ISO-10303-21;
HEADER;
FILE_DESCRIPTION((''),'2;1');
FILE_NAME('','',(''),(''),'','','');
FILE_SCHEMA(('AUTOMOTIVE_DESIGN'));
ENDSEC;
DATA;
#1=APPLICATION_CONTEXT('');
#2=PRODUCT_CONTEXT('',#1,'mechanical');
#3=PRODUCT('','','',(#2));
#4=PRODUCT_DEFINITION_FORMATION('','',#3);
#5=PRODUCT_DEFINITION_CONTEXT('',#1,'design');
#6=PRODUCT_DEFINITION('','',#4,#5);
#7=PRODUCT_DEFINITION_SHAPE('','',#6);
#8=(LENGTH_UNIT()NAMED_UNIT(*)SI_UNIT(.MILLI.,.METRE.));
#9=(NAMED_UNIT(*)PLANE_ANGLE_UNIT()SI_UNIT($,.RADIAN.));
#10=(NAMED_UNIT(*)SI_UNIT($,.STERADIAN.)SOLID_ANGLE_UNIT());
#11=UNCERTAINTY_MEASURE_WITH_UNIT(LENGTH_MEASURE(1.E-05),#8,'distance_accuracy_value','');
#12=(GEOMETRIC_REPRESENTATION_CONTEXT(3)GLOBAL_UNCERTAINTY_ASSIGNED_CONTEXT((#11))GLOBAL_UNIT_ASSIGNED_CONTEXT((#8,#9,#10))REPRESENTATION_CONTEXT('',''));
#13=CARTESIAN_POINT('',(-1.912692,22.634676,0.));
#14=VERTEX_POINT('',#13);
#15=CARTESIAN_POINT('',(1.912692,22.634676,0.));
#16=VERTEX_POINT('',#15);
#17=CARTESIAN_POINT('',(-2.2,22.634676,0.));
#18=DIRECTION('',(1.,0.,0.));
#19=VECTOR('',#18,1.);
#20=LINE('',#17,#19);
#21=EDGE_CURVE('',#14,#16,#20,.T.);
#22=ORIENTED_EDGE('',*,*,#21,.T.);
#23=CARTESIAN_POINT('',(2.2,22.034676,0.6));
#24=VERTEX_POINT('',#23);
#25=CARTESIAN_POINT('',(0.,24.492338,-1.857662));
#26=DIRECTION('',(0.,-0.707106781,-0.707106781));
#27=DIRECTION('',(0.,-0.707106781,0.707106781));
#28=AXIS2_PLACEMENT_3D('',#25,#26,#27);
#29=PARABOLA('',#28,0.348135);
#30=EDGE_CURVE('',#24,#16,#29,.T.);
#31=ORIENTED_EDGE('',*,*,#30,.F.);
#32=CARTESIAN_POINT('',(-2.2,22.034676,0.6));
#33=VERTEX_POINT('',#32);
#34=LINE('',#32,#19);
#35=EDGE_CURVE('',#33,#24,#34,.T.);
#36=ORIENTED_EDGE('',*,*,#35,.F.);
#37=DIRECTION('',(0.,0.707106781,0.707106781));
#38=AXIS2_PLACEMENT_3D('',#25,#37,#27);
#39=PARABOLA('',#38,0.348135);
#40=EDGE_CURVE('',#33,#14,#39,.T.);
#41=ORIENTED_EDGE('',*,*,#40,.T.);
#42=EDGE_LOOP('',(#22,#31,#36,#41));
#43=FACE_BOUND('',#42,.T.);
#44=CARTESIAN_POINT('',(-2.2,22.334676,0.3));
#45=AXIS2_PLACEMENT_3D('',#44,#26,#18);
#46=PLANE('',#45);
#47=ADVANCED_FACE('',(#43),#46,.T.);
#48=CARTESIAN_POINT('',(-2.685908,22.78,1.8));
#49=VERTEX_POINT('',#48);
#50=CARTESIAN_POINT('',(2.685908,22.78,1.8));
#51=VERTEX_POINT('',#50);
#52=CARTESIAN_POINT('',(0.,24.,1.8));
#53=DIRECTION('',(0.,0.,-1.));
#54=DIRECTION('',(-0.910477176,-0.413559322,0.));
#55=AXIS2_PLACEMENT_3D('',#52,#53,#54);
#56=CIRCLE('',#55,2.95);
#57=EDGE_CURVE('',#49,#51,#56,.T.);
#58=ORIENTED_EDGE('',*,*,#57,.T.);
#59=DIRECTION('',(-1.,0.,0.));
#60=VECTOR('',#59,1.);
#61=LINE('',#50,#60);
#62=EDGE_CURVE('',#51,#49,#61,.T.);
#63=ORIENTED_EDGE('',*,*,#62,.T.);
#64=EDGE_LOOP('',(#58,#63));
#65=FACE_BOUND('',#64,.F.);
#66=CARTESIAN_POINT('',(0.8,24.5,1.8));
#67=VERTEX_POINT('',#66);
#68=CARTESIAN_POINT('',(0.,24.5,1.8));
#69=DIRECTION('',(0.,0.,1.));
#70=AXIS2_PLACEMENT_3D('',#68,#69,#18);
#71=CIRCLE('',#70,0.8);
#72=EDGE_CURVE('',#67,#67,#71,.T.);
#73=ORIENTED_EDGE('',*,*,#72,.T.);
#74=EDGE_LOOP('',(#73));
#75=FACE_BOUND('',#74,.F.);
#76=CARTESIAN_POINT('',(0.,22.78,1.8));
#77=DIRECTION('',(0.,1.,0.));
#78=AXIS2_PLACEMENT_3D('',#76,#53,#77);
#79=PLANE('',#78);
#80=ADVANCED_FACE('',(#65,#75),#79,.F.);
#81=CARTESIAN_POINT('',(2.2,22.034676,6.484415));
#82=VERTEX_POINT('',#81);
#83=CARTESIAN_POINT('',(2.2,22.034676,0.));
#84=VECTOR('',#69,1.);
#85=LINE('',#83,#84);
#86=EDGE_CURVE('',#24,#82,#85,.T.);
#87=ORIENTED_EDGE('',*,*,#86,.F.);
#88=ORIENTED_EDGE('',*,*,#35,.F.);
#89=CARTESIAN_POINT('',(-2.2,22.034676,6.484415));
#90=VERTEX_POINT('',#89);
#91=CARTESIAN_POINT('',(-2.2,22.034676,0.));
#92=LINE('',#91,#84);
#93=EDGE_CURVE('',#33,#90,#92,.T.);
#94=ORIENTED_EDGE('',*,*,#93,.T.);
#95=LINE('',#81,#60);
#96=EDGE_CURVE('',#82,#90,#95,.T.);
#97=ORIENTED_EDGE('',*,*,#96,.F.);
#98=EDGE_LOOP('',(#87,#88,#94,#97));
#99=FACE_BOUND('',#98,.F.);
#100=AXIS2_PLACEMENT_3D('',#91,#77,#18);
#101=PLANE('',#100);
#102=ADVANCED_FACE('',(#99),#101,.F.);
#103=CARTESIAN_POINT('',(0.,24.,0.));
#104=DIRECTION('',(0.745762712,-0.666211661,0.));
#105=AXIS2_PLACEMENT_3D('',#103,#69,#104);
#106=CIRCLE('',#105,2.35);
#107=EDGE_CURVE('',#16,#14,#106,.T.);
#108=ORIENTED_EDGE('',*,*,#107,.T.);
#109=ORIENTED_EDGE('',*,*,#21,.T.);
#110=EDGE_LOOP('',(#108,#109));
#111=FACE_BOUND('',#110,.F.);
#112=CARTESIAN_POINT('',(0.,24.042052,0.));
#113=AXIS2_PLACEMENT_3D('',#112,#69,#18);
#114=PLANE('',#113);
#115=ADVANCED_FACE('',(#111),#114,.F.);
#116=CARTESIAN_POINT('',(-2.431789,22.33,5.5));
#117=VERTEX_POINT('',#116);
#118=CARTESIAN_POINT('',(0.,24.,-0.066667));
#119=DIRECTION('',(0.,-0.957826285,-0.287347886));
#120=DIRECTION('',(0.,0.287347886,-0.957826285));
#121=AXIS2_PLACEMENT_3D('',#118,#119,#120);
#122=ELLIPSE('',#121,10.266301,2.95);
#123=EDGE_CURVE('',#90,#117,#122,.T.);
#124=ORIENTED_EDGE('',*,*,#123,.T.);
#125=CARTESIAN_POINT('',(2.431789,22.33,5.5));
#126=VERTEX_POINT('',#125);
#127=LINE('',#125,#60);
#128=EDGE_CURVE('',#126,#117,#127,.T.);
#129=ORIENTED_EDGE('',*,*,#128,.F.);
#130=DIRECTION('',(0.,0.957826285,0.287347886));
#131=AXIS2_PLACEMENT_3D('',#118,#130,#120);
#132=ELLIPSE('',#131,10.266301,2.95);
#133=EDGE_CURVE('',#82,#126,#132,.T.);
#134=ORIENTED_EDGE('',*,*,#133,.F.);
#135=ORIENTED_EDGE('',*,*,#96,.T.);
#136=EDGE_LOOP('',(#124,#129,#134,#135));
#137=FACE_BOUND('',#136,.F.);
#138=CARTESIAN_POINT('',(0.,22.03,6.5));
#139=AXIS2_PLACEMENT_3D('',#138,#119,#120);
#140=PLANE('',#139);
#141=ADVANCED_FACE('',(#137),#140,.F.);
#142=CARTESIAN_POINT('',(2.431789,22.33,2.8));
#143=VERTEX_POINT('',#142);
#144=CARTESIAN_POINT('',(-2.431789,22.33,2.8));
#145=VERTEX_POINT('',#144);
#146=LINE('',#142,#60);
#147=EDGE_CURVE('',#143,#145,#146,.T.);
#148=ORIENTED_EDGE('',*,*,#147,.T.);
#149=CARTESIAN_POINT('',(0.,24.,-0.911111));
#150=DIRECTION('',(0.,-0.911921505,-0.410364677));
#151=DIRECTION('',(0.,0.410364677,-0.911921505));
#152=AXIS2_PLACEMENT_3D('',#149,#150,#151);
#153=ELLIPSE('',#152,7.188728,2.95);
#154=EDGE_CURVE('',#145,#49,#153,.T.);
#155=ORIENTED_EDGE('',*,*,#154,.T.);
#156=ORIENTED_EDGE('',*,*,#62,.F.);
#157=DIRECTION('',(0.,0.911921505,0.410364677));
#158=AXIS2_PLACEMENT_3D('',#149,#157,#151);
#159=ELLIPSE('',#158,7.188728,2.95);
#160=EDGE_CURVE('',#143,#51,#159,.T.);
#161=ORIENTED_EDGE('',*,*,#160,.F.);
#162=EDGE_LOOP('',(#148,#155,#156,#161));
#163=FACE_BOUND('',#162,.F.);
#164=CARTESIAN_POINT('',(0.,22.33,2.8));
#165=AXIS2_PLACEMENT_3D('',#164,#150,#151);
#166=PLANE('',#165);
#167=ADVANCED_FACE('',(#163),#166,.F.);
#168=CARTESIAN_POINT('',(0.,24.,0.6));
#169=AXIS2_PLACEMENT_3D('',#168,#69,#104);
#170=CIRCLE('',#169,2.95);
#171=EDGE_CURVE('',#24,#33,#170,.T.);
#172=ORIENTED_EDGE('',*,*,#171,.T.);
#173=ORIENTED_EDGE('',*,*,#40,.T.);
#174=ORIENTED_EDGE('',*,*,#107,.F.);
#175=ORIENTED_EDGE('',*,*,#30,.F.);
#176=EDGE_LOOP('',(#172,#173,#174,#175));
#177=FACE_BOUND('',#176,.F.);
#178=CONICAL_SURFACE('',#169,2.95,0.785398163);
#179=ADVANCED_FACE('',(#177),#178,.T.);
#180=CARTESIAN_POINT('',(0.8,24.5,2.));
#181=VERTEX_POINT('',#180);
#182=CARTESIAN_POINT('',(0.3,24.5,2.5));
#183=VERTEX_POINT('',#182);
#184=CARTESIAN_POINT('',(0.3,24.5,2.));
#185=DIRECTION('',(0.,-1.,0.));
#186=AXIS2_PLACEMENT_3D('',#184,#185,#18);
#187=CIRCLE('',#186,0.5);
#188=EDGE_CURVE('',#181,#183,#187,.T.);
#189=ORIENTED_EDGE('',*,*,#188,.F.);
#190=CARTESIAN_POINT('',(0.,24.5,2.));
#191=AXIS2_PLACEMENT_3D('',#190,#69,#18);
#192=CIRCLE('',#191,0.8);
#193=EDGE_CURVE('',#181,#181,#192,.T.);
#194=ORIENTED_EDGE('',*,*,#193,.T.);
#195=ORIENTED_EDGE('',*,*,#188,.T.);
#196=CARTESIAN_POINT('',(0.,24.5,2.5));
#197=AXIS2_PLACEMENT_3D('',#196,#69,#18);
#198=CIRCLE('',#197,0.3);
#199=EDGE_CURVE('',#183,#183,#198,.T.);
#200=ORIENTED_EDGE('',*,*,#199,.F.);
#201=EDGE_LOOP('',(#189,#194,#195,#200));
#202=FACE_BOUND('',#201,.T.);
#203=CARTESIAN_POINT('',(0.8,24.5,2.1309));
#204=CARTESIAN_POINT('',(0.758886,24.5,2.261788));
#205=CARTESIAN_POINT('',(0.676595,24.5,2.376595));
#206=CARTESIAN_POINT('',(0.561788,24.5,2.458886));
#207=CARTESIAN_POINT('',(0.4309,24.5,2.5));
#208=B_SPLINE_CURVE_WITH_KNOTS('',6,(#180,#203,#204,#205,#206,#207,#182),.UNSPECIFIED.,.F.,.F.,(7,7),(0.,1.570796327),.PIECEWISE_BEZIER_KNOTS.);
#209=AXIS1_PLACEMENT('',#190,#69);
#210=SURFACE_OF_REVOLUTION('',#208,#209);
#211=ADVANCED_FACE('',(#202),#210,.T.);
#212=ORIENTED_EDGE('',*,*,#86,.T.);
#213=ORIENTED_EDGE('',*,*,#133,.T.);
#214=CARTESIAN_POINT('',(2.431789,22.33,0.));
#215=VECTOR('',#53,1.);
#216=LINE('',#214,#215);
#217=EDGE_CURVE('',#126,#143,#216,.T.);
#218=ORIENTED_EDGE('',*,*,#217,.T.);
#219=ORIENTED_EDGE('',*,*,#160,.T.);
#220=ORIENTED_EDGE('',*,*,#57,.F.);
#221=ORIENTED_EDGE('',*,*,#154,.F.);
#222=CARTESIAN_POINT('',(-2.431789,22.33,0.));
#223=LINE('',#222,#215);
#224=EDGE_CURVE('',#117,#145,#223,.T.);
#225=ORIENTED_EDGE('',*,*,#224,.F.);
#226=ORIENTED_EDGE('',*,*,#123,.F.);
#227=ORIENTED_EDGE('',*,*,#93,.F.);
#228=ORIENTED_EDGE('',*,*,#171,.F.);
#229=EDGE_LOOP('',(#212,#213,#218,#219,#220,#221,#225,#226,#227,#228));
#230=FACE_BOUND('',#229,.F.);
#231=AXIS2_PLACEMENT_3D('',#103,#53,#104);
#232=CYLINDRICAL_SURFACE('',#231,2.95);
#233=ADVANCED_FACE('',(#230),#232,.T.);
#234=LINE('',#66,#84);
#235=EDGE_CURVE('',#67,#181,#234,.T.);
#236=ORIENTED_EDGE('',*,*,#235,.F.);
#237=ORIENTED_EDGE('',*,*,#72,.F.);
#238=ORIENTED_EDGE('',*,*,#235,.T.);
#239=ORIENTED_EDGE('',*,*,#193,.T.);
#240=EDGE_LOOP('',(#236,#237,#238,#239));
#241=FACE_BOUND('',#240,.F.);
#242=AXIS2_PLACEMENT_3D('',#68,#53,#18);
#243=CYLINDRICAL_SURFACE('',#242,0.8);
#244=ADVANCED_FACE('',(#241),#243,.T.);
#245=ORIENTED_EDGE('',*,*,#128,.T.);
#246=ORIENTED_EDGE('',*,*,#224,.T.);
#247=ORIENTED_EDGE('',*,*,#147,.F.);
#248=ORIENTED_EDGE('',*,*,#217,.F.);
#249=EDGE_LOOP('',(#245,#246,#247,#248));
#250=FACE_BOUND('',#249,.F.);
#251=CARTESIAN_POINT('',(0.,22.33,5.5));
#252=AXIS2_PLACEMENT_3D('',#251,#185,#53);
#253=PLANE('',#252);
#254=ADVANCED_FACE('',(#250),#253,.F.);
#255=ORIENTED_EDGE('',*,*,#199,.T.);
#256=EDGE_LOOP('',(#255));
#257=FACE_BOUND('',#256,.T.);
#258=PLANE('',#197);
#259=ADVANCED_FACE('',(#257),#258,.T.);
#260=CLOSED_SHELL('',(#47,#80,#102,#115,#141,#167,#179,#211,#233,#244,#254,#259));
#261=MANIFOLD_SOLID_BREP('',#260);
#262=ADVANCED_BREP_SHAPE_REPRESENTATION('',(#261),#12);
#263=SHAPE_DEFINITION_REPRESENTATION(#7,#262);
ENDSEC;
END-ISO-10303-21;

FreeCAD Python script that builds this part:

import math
import FreeCAD as App
import Part
import Sketcher
from FreeCAD import Vector


def edges_at(feature, points):
    """Names of the edges that pass closest to the given points."""
    edges = feature.Shape.Edges
    near = lambda p: min(range(len(edges)), key=lambda i: edges[i].distToShape(Part.Vertex(*p))[0])
    return sorted({f"Edge{near(p) + 1}" for p in points})

doc = App.newDocument("Part")
params = doc.addObject("Spreadsheet::Sheet", "Params")
for row, (alias, value) in enumerate([
    ("sketch1_radius", "2.95 mm"),
    ("sketch1_width", "4.4 mm"),
    ("pad1_length", "6.5 mm"),
    ("sketch2_height", "2.7 mm"),
    ("sketch2_height2", "4.7 mm"),
    ("sketch2_width", "5.22 mm"),
    ("sketch2_width2", "5.97 mm"),
    ("sketch3_diameter", "1.6 mm"),
    ("pad2_length", "0.7 mm"),
    ("fillet_radius", "0.5 mm"),
    ("chamfer_size", "0.6 mm"),
], start=1):
    params.set(f"A{row}", alias)
    params.set(f"B{row}", "=" + value)
    params.setAlias(f"B{row}", alias)

body = doc.addObject("PartDesign::Body", "Body")

sketch1 = doc.addObject("Sketcher::SketchObject", "Sketch")
body.addObject(sketch1)
sketch1.AttachmentSupport = (doc.XY_Plane, [""])
sketch1.MapMode = "FlatFace"
sketch1.addGeometry(Part.ArcOfCircle(Part.Circle(Vector(0, 0, 0), Vector(0, 0, 1), 2.95), math.radians(-41.775348), math.radians(221.775348)), False)
sketch1.addGeometry(Part.LineSegment(Vector(-2.2, -1.965324, 0), Vector(2.2, -1.965324, 0)), False)
sketch1.addConstraint(Sketcher.Constraint("Coincident", 0, 1, 1, 2))
sketch1.addConstraint(Sketcher.Constraint("Coincident", 1, 1, 0, 2))
sketch1.addConstraint(Sketcher.Constraint("Horizontal", 1))
sketch1.addConstraint(Sketcher.Constraint("Coincident", 0, 3, -1, 1))
sketch1.addConstraint(Sketcher.Constraint("Radius", 0, 2.95))
sketch1.addConstraint(Sketcher.Constraint("DistanceX", 1, 1, 1, 2, 4.4))
sketch1.setExpression("Constraints[4]", "Params.sketch1_radius")
sketch1.setExpression("Constraints[5]", "Params.sketch1_width")
pad1 = doc.addObject("PartDesign::Pad", "Pad")
body.addObject(pad1)
pad1.Profile = sketch1
pad1.setExpression("Length", "Params.pad1_length")

sketch2 = doc.addObject("Sketcher::SketchObject", "Sketch001")
body.addObject(sketch2)
sketch2.AttachmentSupport = (doc.YZ_Plane, [""])
sketch2.MapMode = "FlatFace"
sketch2.addGeometry(Part.LineSegment(Vector(-1.97, 6.5, 0), Vector(-1.67, 5.5, 0)), False)
sketch2.addGeometry(Part.LineSegment(Vector(-1.67, 5.5, 0), Vector(-1.67, 2.8, 0)), False)
sketch2.addGeometry(Part.LineSegment(Vector(-1.67, 2.8, 0), Vector(-1.22, 1.8, 0)), False)
sketch2.addGeometry(Part.LineSegment(Vector(-1.22, 1.8, 0), Vector(4, 1.8, 0)), False)
sketch2.addGeometry(Part.LineSegment(Vector(4, 1.8, 0), Vector(4, 6.5, 0)), False)
sketch2.addGeometry(Part.LineSegment(Vector(4, 6.5, 0), Vector(-1.97, 6.5, 0)), False)
sketch2.addConstraint(Sketcher.Constraint("Coincident", 0, 2, 1, 1))
sketch2.addConstraint(Sketcher.Constraint("Coincident", 1, 2, 2, 1))
sketch2.addConstraint(Sketcher.Constraint("Coincident", 2, 2, 3, 1))
sketch2.addConstraint(Sketcher.Constraint("Coincident", 3, 2, 4, 1))
sketch2.addConstraint(Sketcher.Constraint("Coincident", 4, 2, 5, 1))
sketch2.addConstraint(Sketcher.Constraint("Coincident", 5, 2, 0, 1))
sketch2.addConstraint(Sketcher.Constraint("Vertical", 1))
sketch2.addConstraint(Sketcher.Constraint("Horizontal", 3))
sketch2.addConstraint(Sketcher.Constraint("Vertical", 4))
sketch2.addConstraint(Sketcher.Constraint("Horizontal", 5))
sketch2.addConstraint(Sketcher.Constraint("DistanceY", 1, 2, 1, 1, 2.7))
sketch2.addConstraint(Sketcher.Constraint("DistanceY", 4, 1, 4, 2, 4.7))
sketch2.addConstraint(Sketcher.Constraint("DistanceX", -1, 1, 3, 2, 4.0))
sketch2.addConstraint(Sketcher.Constraint("DistanceY", 2, 2, 1, 2, 1.0))
sketch2.addConstraint(Sketcher.Constraint("DistanceX", 3, 1, 3, 2, 5.22))
sketch2.addConstraint(Sketcher.Constraint("DistanceX", 5, 2, 5, 1, 5.97))
sketch2.addConstraint(Sketcher.Constraint("DistanceY", -1, 1, 0, 2, 5.5))
sketch2.addConstraint(Sketcher.Constraint("DistanceX", 5, 2, 0, 2, 0.3))
sketch2.setExpression("Constraints[10]", "Params.sketch2_height")
sketch2.setExpression("Constraints[11]", "Params.sketch2_height2")
sketch2.setExpression("Constraints[14]", "Params.sketch2_width")
sketch2.setExpression("Constraints[15]", "Params.sketch2_width2")
pocket1 = doc.addObject("PartDesign::Pocket", "Pocket")
body.addObject(pocket1)
pocket1.Profile = sketch2
pocket1.Type = "ThroughAll"
pocket1.Midplane = True

sketch3 = doc.addObject("Sketcher::SketchObject", "Sketch002")
body.addObject(sketch3)
sketch3.AttachmentSupport = (doc.XY_Plane, [""])
sketch3.MapMode = "FlatFace"
sketch3.AttachmentOffset = App.Placement(Vector(0, 0, 1.8), App.Rotation())
sketch3.addGeometry(Part.Circle(Vector(0, 0.5, 0), Vector(0, 0, 1), 0.8), False)
sketch3.addConstraint(Sketcher.Constraint("PointOnObject", 0, 3, -2))
sketch3.addConstraint(Sketcher.Constraint("Diameter", 0, 1.6))
sketch3.addConstraint(Sketcher.Constraint("DistanceY", -1, 1, 0, 3, 0.5))
sketch3.setExpression("Constraints[1]", "Params.sketch3_diameter")
pad2 = doc.addObject("PartDesign::Pad", "Pad001")
body.addObject(pad2)
pad2.Profile = sketch3
pad2.setExpression("Length", "Params.pad2_length")
doc.recompute()

fillet = doc.addObject("PartDesign::Fillet", "Fillet")
body.addObject(fillet)
fillet.Base = (pad2, edges_at(pad2, [(-0.8, 0.5, 2.5)]))
fillet.setExpression("Radius", "Params.fillet_radius")
doc.recompute()

chamfer = doc.addObject("PartDesign::Chamfer", "Chamfer")
body.addObject(chamfer)
chamfer.Base = (fillet, edges_at(fillet, [(0, 2.95, 0), (0, -1.965, 0)]))
chamfer.setExpression("Size", "Params.chamfer_size")
body2 = doc.addObject("PartDesign::Body", "Body001")
doc.recompute()

body.Placement = App.Placement(Vector(0, 24, 0), App.Rotation(Vector(0, 0, 1), 0))
boolean = doc.addObject("PartDesign::Boolean", "Boolean")
body2.addObject(boolean)
boolean.Type = "Fuse"
boolean.addObjects([body])

doc.recompute()
